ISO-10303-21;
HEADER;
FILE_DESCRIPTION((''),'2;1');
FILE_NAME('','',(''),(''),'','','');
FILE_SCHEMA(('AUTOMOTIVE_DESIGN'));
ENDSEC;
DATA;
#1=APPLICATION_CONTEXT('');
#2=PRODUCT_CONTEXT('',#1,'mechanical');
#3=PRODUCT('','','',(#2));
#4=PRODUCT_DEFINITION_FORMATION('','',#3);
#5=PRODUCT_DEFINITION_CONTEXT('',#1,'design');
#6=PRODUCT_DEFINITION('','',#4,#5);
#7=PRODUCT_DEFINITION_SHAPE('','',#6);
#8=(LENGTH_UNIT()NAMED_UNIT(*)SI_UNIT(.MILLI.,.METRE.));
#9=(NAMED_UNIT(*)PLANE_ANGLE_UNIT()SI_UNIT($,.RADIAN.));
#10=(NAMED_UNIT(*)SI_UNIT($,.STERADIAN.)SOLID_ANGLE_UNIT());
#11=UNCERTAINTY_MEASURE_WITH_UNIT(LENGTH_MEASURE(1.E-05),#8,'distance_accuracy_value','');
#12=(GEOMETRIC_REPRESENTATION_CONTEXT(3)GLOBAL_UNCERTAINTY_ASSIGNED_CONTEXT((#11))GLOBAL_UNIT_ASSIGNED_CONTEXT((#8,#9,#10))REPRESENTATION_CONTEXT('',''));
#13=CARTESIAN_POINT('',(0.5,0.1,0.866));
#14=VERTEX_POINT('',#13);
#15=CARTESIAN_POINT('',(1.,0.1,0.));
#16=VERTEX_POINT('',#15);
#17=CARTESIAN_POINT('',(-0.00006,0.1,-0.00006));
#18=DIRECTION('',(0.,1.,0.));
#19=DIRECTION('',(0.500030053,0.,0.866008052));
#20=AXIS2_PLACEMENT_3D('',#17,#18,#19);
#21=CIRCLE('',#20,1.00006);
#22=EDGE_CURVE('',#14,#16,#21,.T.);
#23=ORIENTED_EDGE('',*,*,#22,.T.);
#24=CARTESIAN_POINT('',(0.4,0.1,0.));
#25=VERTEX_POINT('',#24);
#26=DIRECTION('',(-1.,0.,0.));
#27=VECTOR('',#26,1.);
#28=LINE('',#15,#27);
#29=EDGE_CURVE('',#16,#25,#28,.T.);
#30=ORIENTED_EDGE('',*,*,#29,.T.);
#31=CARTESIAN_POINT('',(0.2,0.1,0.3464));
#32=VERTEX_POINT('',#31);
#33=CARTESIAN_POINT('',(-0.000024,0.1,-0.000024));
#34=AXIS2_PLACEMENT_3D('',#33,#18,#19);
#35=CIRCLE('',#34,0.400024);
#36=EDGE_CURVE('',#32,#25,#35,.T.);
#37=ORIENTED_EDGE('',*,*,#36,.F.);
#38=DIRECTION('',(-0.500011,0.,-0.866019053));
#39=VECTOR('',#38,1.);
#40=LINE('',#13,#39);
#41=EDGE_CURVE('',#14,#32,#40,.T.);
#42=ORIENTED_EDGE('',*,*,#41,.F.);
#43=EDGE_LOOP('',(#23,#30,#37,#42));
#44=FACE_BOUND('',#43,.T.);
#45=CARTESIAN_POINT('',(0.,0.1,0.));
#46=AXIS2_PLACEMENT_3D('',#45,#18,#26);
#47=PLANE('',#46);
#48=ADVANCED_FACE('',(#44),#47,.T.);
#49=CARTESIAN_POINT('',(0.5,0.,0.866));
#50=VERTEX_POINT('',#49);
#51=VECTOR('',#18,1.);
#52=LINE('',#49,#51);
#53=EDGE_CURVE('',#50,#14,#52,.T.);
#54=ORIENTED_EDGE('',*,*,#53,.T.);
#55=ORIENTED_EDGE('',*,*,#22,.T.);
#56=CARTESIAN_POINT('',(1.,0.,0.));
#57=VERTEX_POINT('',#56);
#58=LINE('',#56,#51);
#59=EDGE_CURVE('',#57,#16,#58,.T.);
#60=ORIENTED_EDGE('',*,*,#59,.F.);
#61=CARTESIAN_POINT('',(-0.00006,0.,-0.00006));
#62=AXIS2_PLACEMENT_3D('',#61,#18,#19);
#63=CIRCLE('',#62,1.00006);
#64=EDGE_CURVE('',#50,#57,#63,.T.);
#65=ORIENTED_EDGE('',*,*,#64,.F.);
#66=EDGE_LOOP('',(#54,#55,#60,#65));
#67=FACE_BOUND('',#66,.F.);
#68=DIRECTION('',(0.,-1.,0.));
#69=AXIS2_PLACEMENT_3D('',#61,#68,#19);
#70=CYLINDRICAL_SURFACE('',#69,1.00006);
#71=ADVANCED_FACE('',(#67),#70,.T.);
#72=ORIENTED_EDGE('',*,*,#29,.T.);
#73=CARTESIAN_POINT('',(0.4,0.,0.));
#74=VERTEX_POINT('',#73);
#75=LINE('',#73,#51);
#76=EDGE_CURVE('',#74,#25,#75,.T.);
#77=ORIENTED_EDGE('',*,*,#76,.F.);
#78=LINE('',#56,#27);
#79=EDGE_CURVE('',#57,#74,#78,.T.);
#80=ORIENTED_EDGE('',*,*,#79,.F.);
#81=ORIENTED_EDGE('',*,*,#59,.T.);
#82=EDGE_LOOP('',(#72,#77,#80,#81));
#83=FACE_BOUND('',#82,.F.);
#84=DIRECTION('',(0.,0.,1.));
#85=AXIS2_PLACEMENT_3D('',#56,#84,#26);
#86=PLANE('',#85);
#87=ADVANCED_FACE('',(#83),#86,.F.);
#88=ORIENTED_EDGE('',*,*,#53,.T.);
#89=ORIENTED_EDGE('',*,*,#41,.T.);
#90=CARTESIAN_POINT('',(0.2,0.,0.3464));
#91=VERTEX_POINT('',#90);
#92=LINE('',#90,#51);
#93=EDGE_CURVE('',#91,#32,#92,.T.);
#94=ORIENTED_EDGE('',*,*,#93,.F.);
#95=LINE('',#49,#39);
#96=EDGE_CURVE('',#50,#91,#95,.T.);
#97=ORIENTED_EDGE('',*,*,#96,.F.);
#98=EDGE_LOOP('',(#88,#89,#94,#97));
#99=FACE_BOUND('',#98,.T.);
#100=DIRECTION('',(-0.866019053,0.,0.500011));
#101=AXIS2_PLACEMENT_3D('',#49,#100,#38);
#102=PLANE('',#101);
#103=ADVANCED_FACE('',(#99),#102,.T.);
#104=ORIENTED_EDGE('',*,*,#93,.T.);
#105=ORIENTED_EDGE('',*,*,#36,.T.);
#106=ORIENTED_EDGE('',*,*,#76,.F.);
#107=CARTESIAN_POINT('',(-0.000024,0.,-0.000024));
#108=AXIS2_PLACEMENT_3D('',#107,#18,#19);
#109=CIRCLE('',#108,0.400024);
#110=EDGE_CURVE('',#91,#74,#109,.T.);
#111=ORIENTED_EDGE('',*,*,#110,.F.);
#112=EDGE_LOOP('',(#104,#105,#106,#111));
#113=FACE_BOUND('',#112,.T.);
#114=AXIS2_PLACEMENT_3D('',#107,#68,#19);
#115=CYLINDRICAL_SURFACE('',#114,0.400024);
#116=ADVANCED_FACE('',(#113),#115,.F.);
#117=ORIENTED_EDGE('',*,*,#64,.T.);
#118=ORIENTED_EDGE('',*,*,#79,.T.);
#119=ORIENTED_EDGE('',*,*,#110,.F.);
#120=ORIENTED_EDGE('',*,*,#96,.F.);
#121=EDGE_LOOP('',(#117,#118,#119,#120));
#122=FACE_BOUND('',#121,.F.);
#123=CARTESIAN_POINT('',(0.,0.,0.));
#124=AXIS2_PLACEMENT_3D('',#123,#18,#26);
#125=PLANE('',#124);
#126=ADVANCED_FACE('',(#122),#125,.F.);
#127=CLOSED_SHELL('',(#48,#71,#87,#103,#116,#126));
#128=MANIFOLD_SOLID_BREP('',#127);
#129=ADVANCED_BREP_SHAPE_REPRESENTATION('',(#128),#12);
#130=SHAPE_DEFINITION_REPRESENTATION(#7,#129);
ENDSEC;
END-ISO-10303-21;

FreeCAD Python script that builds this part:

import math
import FreeCAD as App
import Part
import Sketcher

V = App.Vector
Q = App.Units.Quantity

doc = App.newDocument("Part")
body = doc.addObject("PartDesign::Body", "Body")

# Sketch on XZ plane
sketch1 = body.newObject("Sketcher::SketchObject", "Sketch")
sketch1.AttachmentSupport = (doc.getObject("XZ_Plane"), [""])
sketch1.MapMode = "FlatFace"
sketch1.addGeometry([
    Part.ArcOfCircle(Part.Circle(V(0, 0, 0), V(0, 0, 1), 0.999978), math.radians(0), math.radians(59.999272)),
    Part.LineSegment(V(1, 0, 0), V(0.4, 0, 0)),
    Part.ArcOfCircle(Part.Circle(V(0, 0, 0), V(0, 0, 1), 0.399991), math.radians(0), math.radians(59.999272)),
    Part.LineSegment(V(0.2, 0.3464, 0), V(0.5, 0.866, 0)),
], False)
sketch1.addConstraint([
    Sketcher.Constraint("Coincident", 0, 1, 1, 1),
    Sketcher.Constraint("Coincident", 1, 2, 2, 1),
    Sketcher.Constraint("Coincident", 2, 2, 3, 1),
    Sketcher.Constraint("Coincident", 3, 2, 0, 2),
    Sketcher.Constraint("Horizontal", 1),
    Sketcher.Constraint("Coincident", 0, 3, -1, 1),
    Sketcher.Constraint("Coincident", 2, 3, -1, 1),
    Sketcher.Constraint("PointOnObject", 0, 1, -1),
    Sketcher.Constraint("Radius", 0, Q("1 mm")),
    Sketcher.Constraint("Radius", 2, Q("0.4 mm")),
    Sketcher.Constraint("DistanceX", 2, 2, 0, 1, Q("0.8 mm")),
    Sketcher.Constraint("Angle", 3, Q("59.9993 deg")),
])
pad1 = body.newObject("PartDesign::Pad", "Pad")
pad1.Profile = sketch1
pad1.Length = 0.1
pad1.Reversed = True

doc.recompute()
